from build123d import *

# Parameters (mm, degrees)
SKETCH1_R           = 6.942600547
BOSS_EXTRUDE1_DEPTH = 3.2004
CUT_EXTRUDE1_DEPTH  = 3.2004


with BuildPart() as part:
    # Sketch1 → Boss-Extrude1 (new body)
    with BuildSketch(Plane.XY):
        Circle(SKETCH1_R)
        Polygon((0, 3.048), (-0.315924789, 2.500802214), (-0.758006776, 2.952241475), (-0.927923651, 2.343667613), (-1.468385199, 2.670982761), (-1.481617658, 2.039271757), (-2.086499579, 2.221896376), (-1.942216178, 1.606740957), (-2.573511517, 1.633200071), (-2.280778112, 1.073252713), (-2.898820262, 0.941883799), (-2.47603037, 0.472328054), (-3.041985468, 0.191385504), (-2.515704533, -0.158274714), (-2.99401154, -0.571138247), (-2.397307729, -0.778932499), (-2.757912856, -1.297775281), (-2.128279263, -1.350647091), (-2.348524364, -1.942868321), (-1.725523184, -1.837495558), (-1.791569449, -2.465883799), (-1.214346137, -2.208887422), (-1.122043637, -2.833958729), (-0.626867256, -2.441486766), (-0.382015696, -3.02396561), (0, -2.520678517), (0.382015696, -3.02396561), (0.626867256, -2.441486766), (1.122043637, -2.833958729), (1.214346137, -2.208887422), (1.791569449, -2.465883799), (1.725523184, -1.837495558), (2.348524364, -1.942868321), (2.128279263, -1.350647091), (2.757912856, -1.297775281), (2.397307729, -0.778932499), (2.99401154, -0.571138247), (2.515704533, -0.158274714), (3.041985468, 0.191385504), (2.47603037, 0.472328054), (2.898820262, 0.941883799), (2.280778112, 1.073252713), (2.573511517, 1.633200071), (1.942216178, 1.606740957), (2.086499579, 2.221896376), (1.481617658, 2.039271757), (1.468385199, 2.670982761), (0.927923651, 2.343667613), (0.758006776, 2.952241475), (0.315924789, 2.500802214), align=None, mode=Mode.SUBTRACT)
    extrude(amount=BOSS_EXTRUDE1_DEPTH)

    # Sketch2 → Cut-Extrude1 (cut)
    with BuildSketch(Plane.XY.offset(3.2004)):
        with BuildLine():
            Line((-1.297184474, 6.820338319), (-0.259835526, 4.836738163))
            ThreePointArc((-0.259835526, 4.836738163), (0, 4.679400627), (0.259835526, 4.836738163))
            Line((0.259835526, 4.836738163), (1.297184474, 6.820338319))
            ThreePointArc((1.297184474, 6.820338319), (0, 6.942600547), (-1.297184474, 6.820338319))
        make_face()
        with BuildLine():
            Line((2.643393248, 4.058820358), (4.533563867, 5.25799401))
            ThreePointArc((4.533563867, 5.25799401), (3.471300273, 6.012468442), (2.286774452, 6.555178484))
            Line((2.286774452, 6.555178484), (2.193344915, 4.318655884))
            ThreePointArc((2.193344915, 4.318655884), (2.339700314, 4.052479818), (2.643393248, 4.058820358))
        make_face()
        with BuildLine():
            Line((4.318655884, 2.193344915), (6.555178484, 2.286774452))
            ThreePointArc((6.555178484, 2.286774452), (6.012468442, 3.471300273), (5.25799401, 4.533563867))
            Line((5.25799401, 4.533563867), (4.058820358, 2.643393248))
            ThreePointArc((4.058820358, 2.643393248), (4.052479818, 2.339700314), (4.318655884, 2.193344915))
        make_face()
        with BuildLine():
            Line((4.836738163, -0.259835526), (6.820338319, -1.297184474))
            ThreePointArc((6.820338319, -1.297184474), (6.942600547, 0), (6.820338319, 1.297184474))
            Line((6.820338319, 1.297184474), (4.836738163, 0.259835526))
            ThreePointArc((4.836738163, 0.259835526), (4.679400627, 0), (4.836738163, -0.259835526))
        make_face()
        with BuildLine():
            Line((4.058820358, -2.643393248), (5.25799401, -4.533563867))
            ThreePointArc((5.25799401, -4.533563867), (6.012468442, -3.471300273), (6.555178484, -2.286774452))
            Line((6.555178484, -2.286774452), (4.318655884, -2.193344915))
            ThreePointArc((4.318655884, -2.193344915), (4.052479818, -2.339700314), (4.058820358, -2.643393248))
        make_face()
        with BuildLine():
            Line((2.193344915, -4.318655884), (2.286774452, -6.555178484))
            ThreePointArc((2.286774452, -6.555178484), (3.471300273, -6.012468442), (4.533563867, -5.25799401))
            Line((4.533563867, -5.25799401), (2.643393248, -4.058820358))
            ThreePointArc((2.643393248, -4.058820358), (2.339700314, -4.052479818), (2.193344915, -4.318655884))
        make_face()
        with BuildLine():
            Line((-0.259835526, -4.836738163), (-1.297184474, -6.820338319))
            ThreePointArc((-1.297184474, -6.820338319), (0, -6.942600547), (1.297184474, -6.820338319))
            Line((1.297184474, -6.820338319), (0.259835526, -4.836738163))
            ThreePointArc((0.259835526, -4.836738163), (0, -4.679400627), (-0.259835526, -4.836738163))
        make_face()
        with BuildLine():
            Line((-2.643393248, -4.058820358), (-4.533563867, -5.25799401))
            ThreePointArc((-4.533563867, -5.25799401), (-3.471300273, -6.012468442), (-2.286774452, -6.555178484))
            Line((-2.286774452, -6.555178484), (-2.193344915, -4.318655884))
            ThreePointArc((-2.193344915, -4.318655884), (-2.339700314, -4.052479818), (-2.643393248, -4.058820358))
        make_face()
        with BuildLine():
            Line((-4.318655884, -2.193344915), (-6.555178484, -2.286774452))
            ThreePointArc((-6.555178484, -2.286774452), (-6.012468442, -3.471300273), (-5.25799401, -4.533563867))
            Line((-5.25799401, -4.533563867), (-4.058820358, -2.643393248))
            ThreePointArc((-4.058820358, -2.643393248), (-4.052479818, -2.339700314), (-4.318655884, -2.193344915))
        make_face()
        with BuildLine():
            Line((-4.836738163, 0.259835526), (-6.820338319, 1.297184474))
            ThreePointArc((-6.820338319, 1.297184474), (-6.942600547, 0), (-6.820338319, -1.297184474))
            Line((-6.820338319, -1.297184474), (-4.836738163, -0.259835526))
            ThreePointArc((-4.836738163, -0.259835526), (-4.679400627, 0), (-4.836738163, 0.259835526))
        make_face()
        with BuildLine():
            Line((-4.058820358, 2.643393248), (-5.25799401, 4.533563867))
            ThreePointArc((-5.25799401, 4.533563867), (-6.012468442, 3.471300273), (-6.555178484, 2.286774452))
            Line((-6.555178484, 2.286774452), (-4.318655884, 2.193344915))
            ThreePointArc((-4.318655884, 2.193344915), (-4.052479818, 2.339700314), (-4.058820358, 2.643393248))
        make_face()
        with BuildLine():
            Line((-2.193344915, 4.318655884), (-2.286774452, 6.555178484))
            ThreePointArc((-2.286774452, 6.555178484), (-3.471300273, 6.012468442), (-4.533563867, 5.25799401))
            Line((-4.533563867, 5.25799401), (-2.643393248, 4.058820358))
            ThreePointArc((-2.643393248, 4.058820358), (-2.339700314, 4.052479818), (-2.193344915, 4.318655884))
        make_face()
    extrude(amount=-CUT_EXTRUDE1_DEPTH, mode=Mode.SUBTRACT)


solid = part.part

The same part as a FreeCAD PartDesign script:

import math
import FreeCAD as App
import Part
import Sketcher
from FreeCAD import Vector
Q = App.Units.Quantity


def add_polygon(sketch, points):
    """Adds a closed chain of lines whose ends are joined by coincident constraints."""
    first, n = sketch.GeometryCount, len(points)
    for a, b in zip(points, points[1:] + points[:1]):
        sketch.addGeometry(Part.LineSegment(App.Vector(*a, 0), App.Vector(*b, 0)), False)
    for i in range(n):
        sketch.addConstraint(Sketcher.Constraint("Coincident", first + i, 2, first + (i + 1) % n, 1))

doc = App.newDocument("Part")
params = doc.addObject("Spreadsheet::Sheet", "Params")
for row, (alias, value) in enumerate([
    ("pad1_length", "0.126 in"),
    ("pocket1_length", "0.126 in"),
], start=1):
    params.set(f"A{row}", alias)
    params.set(f"B{row}", "=" + value)
    params.setAlias(f"B{row}", alias)

body = doc.addObject("PartDesign::Body", "Body")

# Sketch on XY plane
sketch1 = body.newObject("Sketcher::SketchObject", "Sketch")
sketch1.AttachmentSupport = (doc.getObject("XY_Plane"), [""])
sketch1.MapMode = "FlatFace"
sketch1.addGeometry(Part.Circle(Vector(0, 0, 0), Vector(0, 0, 1), 6.9), False)  # 0
add_polygon(sketch1, [(-0.3, 2.5), (0, 3), (0.3, 2.5), (0.8, 3), (0.9, 2.3), (1.5, 2.7), (1.5, 2), (2.1, 2.2), (1.9, 1.6), (2.6, 1.6), (2.3, 1.1), (2.9, 0.9), (2.5, 0.5), (3, 0.2), (2.5, -0.2), (3, -0.6), (2.4, -0.8), (2.8, -1.3), (2.1, -1.4), (2.3, -1.9), (1.7, -1.8), (1.8, -2.5), (1.2, -2.2), (1.1, -2.8), (0.6, -2.4), (0.4, -3), (0, -2.5), (-0.4, -3), (-0.6, -2.4), (-1.1, -2.8), (-1.2, -2.2), (-1.8, -2.5), (-1.7, -1.8), (-2.3, -1.9), (-2.1, -1.4), (-2.8, -1.3), (-2.4, -0.8), (-3, -0.6), (-2.5, -0.2), (-3, 0.2), (-2.5, 0.5), (-2.9, 0.9), (-2.3, 1.1), (-2.6, 1.6), (-1.9, 1.6), (-2.1, 2.2), (-1.5, 2), (-1.5, 2.7), (-0.9, 2.3), (-0.8, 3)])  # lines 1-50
sketch1.addConstraint([
    Sketcher.Constraint("Coincident", 0, 3, -1, 1),
    Sketcher.Constraint("Symmetric", 25, 2, 27, 2, -2),
    Sketcher.Constraint("Symmetric", 24, 2, 28, 2, -2),
    Sketcher.Constraint("Symmetric", 23, 2, 29, 2, -2),
    Sketcher.Constraint("Symmetric", 22, 2, 30, 2, -2),
    Sketcher.Constraint("Symmetric", 21, 2, 31, 2, -2),
    Sketcher.Constraint("Symmetric", 20, 2, 32, 2, -2),
    Sketcher.Constraint("Symmetric", 19, 2, 33, 2, -2),
    Sketcher.Constraint("Symmetric", 18, 2, 34, 2, -2),
    Sketcher.Constraint("Symmetric", 17, 2, 35, 2, -2),
    Sketcher.Constraint("Symmetric", 16, 2, 36, 2, -2),
    Sketcher.Constraint("Symmetric", 15, 2, 37, 2, -2),
    Sketcher.Constraint("Symmetric", 14, 2, 38, 2, -2),
    Sketcher.Constraint("Symmetric", 13, 2, 39, 2, -2),
    Sketcher.Constraint("Symmetric", 12, 2, 40, 2, -2),
    Sketcher.Constraint("Symmetric", 11, 2, 41, 2, -2),
    Sketcher.Constraint("Symmetric", 10, 2, 42, 2, -2),
    Sketcher.Constraint("Symmetric", 9, 2, 43, 2, -2),
    Sketcher.Constraint("Symmetric", 8, 2, 44, 2, -2),
    Sketcher.Constraint("Symmetric", 7, 2, 45, 2, -2),
    Sketcher.Constraint("Symmetric", 6, 2, 46, 2, -2),
    Sketcher.Constraint("Symmetric", 5, 2, 47, 2, -2),
    Sketcher.Constraint("Symmetric", 4, 2, 48, 2, -2),
    Sketcher.Constraint("Symmetric", 3, 2, 49, 2, -2),
    Sketcher.Constraint("Symmetric", 2, 2, 50, 2, -2),
    Sketcher.Constraint("PointOnObject", 1, 2, -2),
    Sketcher.Constraint("PointOnObject", 26, 2, -2),
    Sketcher.Constraint("Equal", 2, 3),
    Sketcher.Constraint("Equal", 3, 4),
    Sketcher.Constraint("Equal", 4, 5),
    Sketcher.Constraint("Equal", 5, 6),
    Sketcher.Constraint("Equal", 6, 7),
    Sketcher.Constraint("Equal", 7, 8),
    Sketcher.Constraint("Equal", 8, 9),
    Sketcher.Constraint("Equal", 9, 10),
    Sketcher.Constraint("Equal", 10, 11),
    Sketcher.Constraint("Equal", 11, 12),
    Sketcher.Constraint("Equal", 12, 13),
    Sketcher.Constraint("Equal", 13, 14),
    Sketcher.Constraint("Equal", 14, 15),
    Sketcher.Constraint("Equal", 15, 16),
    Sketcher.Constraint("Equal", 16, 17),
    Sketcher.Constraint("Equal", 17, 18),
    Sketcher.Constraint("Equal", 18, 19),
    Sketcher.Constraint("Equal", 19, 20),
    Sketcher.Constraint("Equal", 20, 21),
    Sketcher.Constraint("Equal", 21, 22),
    Sketcher.Constraint("Equal", 22, 23),
    Sketcher.Constraint("Equal", 23, 24),
    Sketcher.Constraint("Equal", 24, 25),
    Sketcher.Constraint("Equal", 25, 26),
    Sketcher.Constraint("Angle", 1, Q("60 deg")),
    Sketcher.Constraint("Angle", 11, Q("-12 deg")),
    Sketcher.Constraint("Angle", 12, Q("-132 deg")),
    Sketcher.Constraint("Angle", 21, Q("-84 deg")),
    Sketcher.Constraint("Angle", 22, Q("156 deg")),
    Sketcher.Constraint("Angle", 3, Q("45.6 deg")),
    Sketcher.Constraint("Angle", 4, Q("-74.4 deg")),
    Sketcher.Constraint("Angle", 5, Q("31.2 deg")),
    Sketcher.Constraint("Angle", 6, Q("-88.8 deg")),
    Sketcher.Constraint("Angle", 7, Q("16.8 deg")),
    Sketcher.Constraint("Angle", 8, Q("-103.2 deg")),
    Sketcher.Constraint("Angle", 9, Q("2.4 deg")),
    Sketcher.Constraint("Angle", 10, Q("-117.6 deg")),
    Sketcher.Constraint("Angle", 13, Q("-26.4 deg")),
    Sketcher.Constraint("Angle", 14, Q("-146.4 deg")),
    Sketcher.Constraint("Angle", 15, Q("-40.8 deg")),
    Sketcher.Constraint("Angle", 16, Q("-160.8 deg")),
    Sketcher.Constraint("Angle", 17, Q("-55.2 deg")),
    Sketcher.Constraint("Angle", 18, Q("-175.2 deg")),
    Sketcher.Constraint("Angle", 19, Q("-69.6 deg")),
    Sketcher.Constraint("Angle", 20, Q("170.4 deg")),
    Sketcher.Constraint("Angle", 23, Q("-98.4 deg")),
    Sketcher.Constraint("Angle", 24, Q("141.6 deg")),
    Sketcher.Constraint("Angle", 25, Q("-112.8 deg")),
    Sketcher.Constraint("Diameter", 0, Q("13.885201 mm")),
    Sketcher.Constraint("DistanceY", -1, 1, 1, 2, Q("0.12 in")),
    Sketcher.Constraint("DistanceY", 2, 2, 5, 2, Q("0.0067 in")),
])
pad1 = body.newObject("PartDesign::Pad", "Pad")
pad1.Profile = sketch1
pad1.setExpression("Length", "Params.pad1_length")

# Sketch on XY plane
sketch2 = body.newObject("Sketcher::SketchObject", "Sketch001")
sketch2.AttachmentSupport = (doc.getObject("XY_Plane"), [""])
sketch2.MapMode = "FlatFace"
sketch2.AttachmentOffset = App.Placement(Vector(0, 0, 0.126 * 25.4), App.Rotation())
sketch2.addGeometry([
    Part.LineSegment(Vector(-1.3, 6.82, 0), Vector(-0.26, 4.84, 0)),  # 0
    Part.ArcOfCircle(Part.Circle(Vector(0, 4.97, 0), Vector(0, 0, 1), 0.29), math.radians(-152), math.radians(-28)),  # 1
    Part.LineSegment(Vector(0.26, 4.84, 0), Vector(1.3, 6.82, 0)),  # 2
    Part.ArcOfCircle(Part.Circle(Vector(0, 0, 0), Vector(0, 0, 1), 6.94), math.radians(79), math.radians(101)),  # 3
    Part.LineSegment(Vector(2.64, 4.06, 0), Vector(4.53, 5.26, 0)),  # 4
    Part.ArcOfCircle(Part.Circle(Vector(0, 0, 0), Vector(0, 0, 1), 6.94), math.radians(49), math.radians(71)),  # 5
    Part.LineSegment(Vector(2.29, 6.56, 0), Vector(2.19, 4.32, 0)),  # 6
    Part.ArcOfCircle(Part.Circle(Vector(2.49, 4.31, 0), Vector(0, 0, 1), 0.29), math.radians(178), math.radians(302)),  # 7
    Part.LineSegment(Vector(4.32, 2.19, 0), Vector(6.56, 2.29, 0)),  # 8
    Part.ArcOfCircle(Part.Circle(Vector(0, 0, 0), Vector(0, 0, 1), 6.94), math.radians(19), math.radians(41)),  # 9
    Part.LineSegment(Vector(5.26, 4.53, 0), Vector(4.06, 2.64, 0)),  # 10
    Part.ArcOfCircle(Part.Circle(Vector(4.31, 2.49, 0), Vector(0, 0, 1), 0.29), math.radians(148), math.radians(272)),  # 11
    Part.LineSegment(Vector(4.84, -0.26, 0), Vector(6.82, -1.3, 0)),  # 12
    Part.ArcOfCircle(Part.Circle(Vector(0, 0, 0), Vector(0, 0, 1), 6.94), math.radians(-11), math.radians(11)),  # 13
    Part.LineSegment(Vector(6.82, 1.3, 0), Vector(4.84, 0.26, 0)),  # 14
    Part.ArcOfCircle(Part.Circle(Vector(4.97, 0, 0), Vector(0, 0, 1), 0.29), math.radians(118), math.radians(242)),  # 15
    Part.LineSegment(Vector(4.06, -2.64, 0), Vector(5.26, -4.53, 0)),  # 16
    Part.ArcOfCircle(Part.Circle(Vector(0, 0, 0), Vector(0, 0, 1), 6.94), math.radians(-41), math.radians(-19)),  # 17
    Part.LineSegment(Vector(6.56, -2.29, 0), Vector(4.32, -2.19, 0)),  # 18
    Part.ArcOfCircle(Part.Circle(Vector(4.31, -2.49, 0), Vector(0, 0, 1), 0.29), math.radians(88), math.radians(212)),  # 19
    Part.LineSegment(Vector(2.19, -4.32, 0), Vector(2.29, -6.56, 0)),  # 20
    Part.ArcOfCircle(Part.Circle(Vector(0, 0, 0), Vector(0, 0, 1), 6.94), math.radians(-71), math.radians(-49)),  # 21
    Part.LineSegment(Vector(4.53, -5.26, 0), Vector(2.64, -4.06, 0)),  # 22
    Part.ArcOfCircle(Part.Circle(Vector(2.49, -4.31, 0), Vector(0, 0, 1), 0.29), math.radians(58), math.radians(182)),  # 23
    Part.LineSegment(Vector(-0.26, -4.84, 0), Vector(-1.3, -6.82, 0)),  # 24
    Part.ArcOfCircle(Part.Circle(Vector(0, 0, 0), Vector(0, 0, 1), 6.94), math.radians(-101), math.radians(-79)),  # 25
    Part.LineSegment(Vector(1.3, -6.82, 0), Vector(0.26, -4.84, 0)),  # 26
    Part.ArcOfCircle(Part.Circle(Vector(0, -4.97, 0), Vector(0, 0, 1), 0.29), math.radians(28), math.radians(152)),  # 27
    Part.LineSegment(Vector(-2.64, -4.06, 0), Vector(-4.53, -5.26, 0)),  # 28
    Part.ArcOfCircle(Part.Circle(Vector(0, 0, 0), Vector(0, 0, 1), 6.94), math.radians(-131), math.radians(-109)),  # 29
    Part.LineSegment(Vector(-2.29, -6.56, 0), Vector(-2.19, -4.32, 0)),  # 30
    Part.ArcOfCircle(Part.Circle(Vector(-2.49, -4.31, 0), Vector(0, 0, 1), 0.29), math.radians(-2), math.radians(122)),  # 31
    Part.LineSegment(Vector(-4.32, -2.19, 0), Vector(-6.56, -2.29, 0)),  # 32
    Part.ArcOfCircle(Part.Circle(Vector(0, 0, 0), Vector(0, 0, 1), 6.94), math.radians(-161), math.radians(-139)),  # 33
    Part.LineSegment(Vector(-5.26, -4.53, 0), Vector(-4.06, -2.64, 0)),  # 34
    Part.ArcOfCircle(Part.Circle(Vector(-4.31, -2.49, 0), Vector(0, 0, 1), 0.29), math.radians(-32), math.radians(92)),  # 35
    Part.LineSegment(Vector(-4.84, 0.26, 0), Vector(-6.82, 1.3, 0)),  # 36
    Part.ArcOfCircle(Part.Circle(Vector(0, 0, 0), Vector(0, 0, 1), 6.94), math.radians(169), math.radians(191)),  # 37
    Part.LineSegment(Vector(-6.82, -1.3, 0), Vector(-4.84, -0.26, 0)),  # 38
    Part.ArcOfCircle(Part.Circle(Vector(-4.97, 0, 0), Vector(0, 0, 1), 0.29), math.radians(-62), math.radians(62)),  # 39
    Part.LineSegment(Vector(-4.06, 2.64, 0), Vector(-5.26, 4.53, 0)),  # 40
    Part.ArcOfCircle(Part.Circle(Vector(0, 0, 0), Vector(0, 0, 1), 6.94), math.radians(139), math.radians(161)),  # 41
    Part.LineSegment(Vector(-6.56, 2.29, 0), Vector(-4.32, 2.19, 0)),  # 42
    Part.ArcOfCircle(Part.Circle(Vector(-4.31, 2.49, 0), Vector(0, 0, 1), 0.29), math.radians(-92), math.radians(32)),  # 43
    Part.LineSegment(Vector(-2.19, 4.32, 0), Vector(-2.29, 6.56, 0)),  # 44
    Part.ArcOfCircle(Part.Circle(Vector(0, 0, 0), Vector(0, 0, 1), 6.94), math.radians(109), math.radians(131)),  # 45
    Part.LineSegment(Vector(-4.53, 5.26, 0), Vector(-2.64, 4.06, 0)),  # 46
    Part.ArcOfCircle(Part.Circle(Vector(-2.49, 4.31, 0), Vector(0, 0, 1), 0.29), math.radians(-122), math.radians(2)),  # 47
], False)
sketch2.addConstraint([
    Sketcher.Constraint("Tangent", 0, 2, 1, 1),
    Sketcher.Constraint("Tangent", 1, 2, 2, 1),
    Sketcher.Constraint("Coincident", 2, 2, 3, 1),
    Sketcher.Constraint("Coincident", 3, 2, 0, 1),
    Sketcher.Constraint("Coincident", 4, 2, 5, 1),
    Sketcher.Constraint("Coincident", 5, 2, 6, 1),
    Sketcher.Constraint("Tangent", 6, 2, 7, 1),
    Sketcher.Constraint("Tangent", 7, 2, 4, 1),
    Sketcher.Constraint("Coincident", 8, 2, 9, 1),
    Sketcher.Constraint("Coincident", 9, 2, 10, 1),
    Sketcher.Constraint("Tangent", 10, 2, 11, 1),
    Sketcher.Constraint("Tangent", 11, 2, 8, 1),
    Sketcher.Constraint("Coincident", 12, 2, 13, 1),
    Sketcher.Constraint("Coincident", 13, 2, 14, 1),
    Sketcher.Constraint("Tangent", 14, 2, 15, 1),
    Sketcher.Constraint("Tangent", 15, 2, 12, 1),
    Sketcher.Constraint("Coincident", 16, 2, 17, 1),
    Sketcher.Constraint("Coincident", 17, 2, 18, 1),
    Sketcher.Constraint("Tangent", 18, 2, 19, 1),
    Sketcher.Constraint("Tangent", 19, 2, 16, 1),
    Sketcher.Constraint("Coincident", 20, 2, 21, 1),
    Sketcher.Constraint("Coincident", 21, 2, 22, 1),
    Sketcher.Constraint("Tangent", 22, 2, 23, 1),
    Sketcher.Constraint("Tangent", 23, 2, 20, 1),
    Sketcher.Constraint("Coincident", 24, 2, 25, 1),
    Sketcher.Constraint("Coincident", 25, 2, 26, 1),
    Sketcher.Constraint("Tangent", 26, 2, 27, 1),
    Sketcher.Constraint("Tangent", 27, 2, 24, 1),
    Sketcher.Constraint("Coincident", 28, 2, 29, 1),
    Sketcher.Constraint("Coincident", 29, 2, 30, 1),
    Sketcher.Constraint("Tangent", 30, 2, 31, 1),
    Sketcher.Constraint("Tangent", 31, 2, 28, 1),
    Sketcher.Constraint("Coincident", 32, 2, 33, 1),
    Sketcher.Constraint("Coincident", 33, 2, 34, 1),
    Sketcher.Constraint("Tangent", 34, 2, 35, 1),
    Sketcher.Constraint("Tangent", 35, 2, 32, 1),
    Sketcher.Constraint("Coincident", 36, 2, 37, 1),
    Sketcher.Constraint("Coincident", 37, 2, 38, 1),
    Sketcher.Constraint("Tangent", 38, 2, 39, 1),
    Sketcher.Constraint("Tangent", 39, 2, 36, 1),
    Sketcher.Constraint("Coincident", 40, 2, 41, 1),
    Sketcher.Constraint("Coincident", 41, 2, 42, 1),
    Sketcher.Constraint("Tangent", 42, 2, 43, 1),
    Sketcher.Constraint("Tangent", 43, 2, 40, 1),
    Sketcher.Constraint("Coincident", 44, 2, 45, 1),
    Sketcher.Constraint("Coincident", 45, 2, 46, 1),
    Sketcher.Constraint("Tangent", 46, 2, 47, 1),
    Sketcher.Constraint("Tangent", 47, 2, 44, 1),
    Sketcher.Constraint("Coincident", 3, 3, -1, 1),
    Sketcher.Constraint("Coincident", 5, 3, -1, 1),
    Sketcher.Constraint("Coincident", 9, 3, -1, 1),
    Sketcher.Constraint("Coincident", 13, 3, -1, 1),
    Sketcher.Constraint("Coincident", 17, 3, -1, 1),
    Sketcher.Constraint("Coincident", 21, 3, -1, 1),
    Sketcher.Constraint("Coincident", 25, 3, -1, 1),
    Sketcher.Constraint("Coincident", 29, 3, -1, 1),
    Sketcher.Constraint("Coincident", 33, 3, -1, 1),
    Sketcher.Constraint("Coincident", 37, 3, -1, 1),
    Sketcher.Constraint("Coincident", 41, 3, -1, 1),
    Sketcher.Constraint("Coincident", 45, 3, -1, 1),
    Sketcher.Constraint("Equal", 3, 5),
    Sketcher.Constraint("Equal", 1, 7),
    Sketcher.Constraint("Equal", 5, 9),
    Sketcher.Constraint("Equal", 7, 11),
    Sketcher.Constraint("Equal", 9, 13),
    Sketcher.Constraint("Equal", 11, 15),
    Sketcher.Constraint("Equal", 13, 17),
    Sketcher.Constraint("Equal", 15, 19),
    Sketcher.Constraint("Equal", 17, 21),
    Sketcher.Constraint("Equal", 19, 23),
    Sketcher.Constraint("Equal", 21, 25),
    Sketcher.Constraint("Equal", 23, 27),
    Sketcher.Constraint("Equal", 25, 29),
    Sketcher.Constraint("Equal", 27, 31),
    Sketcher.Constraint("Equal", 29, 33),
    Sketcher.Constraint("Equal", 31, 35),
    Sketcher.Constraint("Equal", 33, 37),
    Sketcher.Constraint("Equal", 35, 39),
    Sketcher.Constraint("Equal", 37, 41),
    Sketcher.Constraint("Equal", 39, 43),
    Sketcher.Constraint("Equal", 41, 45),
    Sketcher.Constraint("Equal", 43, 47),
    Sketcher.Constraint("Symmetric", 1, 3, 27, 3, -1, 1),
    Sketcher.Constraint("Symmetric", 7, 3, 31, 3, -1, 1),
    Sketcher.Constraint("Symmetric", 11, 3, 35, 3, -1, 1),
    Sketcher.Constraint("Symmetric", 15, 3, 39, 3, -1, 1),
    Sketcher.Constraint("Symmetric", 19, 3, 43, 3, -1, 1),
    Sketcher.Constraint("Symmetric", 23, 3, 47, 3, -1, 1),
    Sketcher.Constraint("Symmetric", 23, 3, 31, 3, -2),
    Sketcher.Constraint("Symmetric", 19, 3, 35, 3, -2),
    Sketcher.Constraint("Symmetric", 0, 2, 1, 2, -2),
    Sketcher.Constraint("Symmetric", 15, 2, 38, 2, -2),
    Sketcher.Constraint("Perpendicular", 2, 12),
    Sketcher.Constraint("Perpendicular", 0, 14),
    Sketcher.Constraint("Perpendicular", 4, 16),
    Sketcher.Constraint("Perpendicular", 6, 18),
    Sketcher.Constraint("Perpendicular", 8, 20),
    Sketcher.Constraint("Perpendicular", 10, 22),
    Sketcher.Constraint("Perpendicular", 12, 24),
    Sketcher.Constraint("Perpendicular", 14, 26),
    Sketcher.Constraint("Perpendicular", 16, 28),
    Sketcher.Constraint("Perpendicular", 18, 30),
    Sketcher.Constraint("Perpendicular", 20, 32),
    Sketcher.Constraint("Perpendicular", 22, 34),
    Sketcher.Constraint("Perpendicular", 24, 36),
    Sketcher.Constraint("Perpendicular", 28, 40),
    Sketcher.Constraint("Perpendicular", 30, 42),
    Sketcher.Constraint("Perpendicular", 32, 44),
    Sketcher.Constraint("Perpendicular", 34, 46),
    Sketcher.Constraint("Horizontal", 21, 2, 28, 2),
    Sketcher.Constraint("Horizontal", 20, 2, 29, 2),
    Sketcher.Constraint("Equal", 2, 4),
    Sketcher.Constraint("Equal", 4, 6),
    Sketcher.Constraint("Equal", 6, 8),
    Sketcher.Constraint("Equal", 8, 10),
    Sketcher.Constraint("Equal", 10, 12),
    Sketcher.Constraint("Radius", 3, Q("6.942601 mm")),
    Sketcher.Constraint("Radius", 1, Q("0.293222 mm")),
    Sketcher.Constraint("DistanceX", -1, 1, 7, 3, Q("2.486311 mm")),
    Sketcher.Constraint("DistanceY", -1, 1, 0, 2, Q("4.836738 mm")),
    Sketcher.Constraint("DistanceY", -1, 1, 2, 2, Q("6.820338 mm")),
    Sketcher.Constraint("DistanceY", -1, 1, 5, 2, Q("6.555178 mm")),
])
pocket1 = body.newObject("PartDesign::Pocket", "Pocket")
pocket1.Profile = sketch2
pocket1.setExpression("Length", "Params.pocket1_length")

doc.recompute()
